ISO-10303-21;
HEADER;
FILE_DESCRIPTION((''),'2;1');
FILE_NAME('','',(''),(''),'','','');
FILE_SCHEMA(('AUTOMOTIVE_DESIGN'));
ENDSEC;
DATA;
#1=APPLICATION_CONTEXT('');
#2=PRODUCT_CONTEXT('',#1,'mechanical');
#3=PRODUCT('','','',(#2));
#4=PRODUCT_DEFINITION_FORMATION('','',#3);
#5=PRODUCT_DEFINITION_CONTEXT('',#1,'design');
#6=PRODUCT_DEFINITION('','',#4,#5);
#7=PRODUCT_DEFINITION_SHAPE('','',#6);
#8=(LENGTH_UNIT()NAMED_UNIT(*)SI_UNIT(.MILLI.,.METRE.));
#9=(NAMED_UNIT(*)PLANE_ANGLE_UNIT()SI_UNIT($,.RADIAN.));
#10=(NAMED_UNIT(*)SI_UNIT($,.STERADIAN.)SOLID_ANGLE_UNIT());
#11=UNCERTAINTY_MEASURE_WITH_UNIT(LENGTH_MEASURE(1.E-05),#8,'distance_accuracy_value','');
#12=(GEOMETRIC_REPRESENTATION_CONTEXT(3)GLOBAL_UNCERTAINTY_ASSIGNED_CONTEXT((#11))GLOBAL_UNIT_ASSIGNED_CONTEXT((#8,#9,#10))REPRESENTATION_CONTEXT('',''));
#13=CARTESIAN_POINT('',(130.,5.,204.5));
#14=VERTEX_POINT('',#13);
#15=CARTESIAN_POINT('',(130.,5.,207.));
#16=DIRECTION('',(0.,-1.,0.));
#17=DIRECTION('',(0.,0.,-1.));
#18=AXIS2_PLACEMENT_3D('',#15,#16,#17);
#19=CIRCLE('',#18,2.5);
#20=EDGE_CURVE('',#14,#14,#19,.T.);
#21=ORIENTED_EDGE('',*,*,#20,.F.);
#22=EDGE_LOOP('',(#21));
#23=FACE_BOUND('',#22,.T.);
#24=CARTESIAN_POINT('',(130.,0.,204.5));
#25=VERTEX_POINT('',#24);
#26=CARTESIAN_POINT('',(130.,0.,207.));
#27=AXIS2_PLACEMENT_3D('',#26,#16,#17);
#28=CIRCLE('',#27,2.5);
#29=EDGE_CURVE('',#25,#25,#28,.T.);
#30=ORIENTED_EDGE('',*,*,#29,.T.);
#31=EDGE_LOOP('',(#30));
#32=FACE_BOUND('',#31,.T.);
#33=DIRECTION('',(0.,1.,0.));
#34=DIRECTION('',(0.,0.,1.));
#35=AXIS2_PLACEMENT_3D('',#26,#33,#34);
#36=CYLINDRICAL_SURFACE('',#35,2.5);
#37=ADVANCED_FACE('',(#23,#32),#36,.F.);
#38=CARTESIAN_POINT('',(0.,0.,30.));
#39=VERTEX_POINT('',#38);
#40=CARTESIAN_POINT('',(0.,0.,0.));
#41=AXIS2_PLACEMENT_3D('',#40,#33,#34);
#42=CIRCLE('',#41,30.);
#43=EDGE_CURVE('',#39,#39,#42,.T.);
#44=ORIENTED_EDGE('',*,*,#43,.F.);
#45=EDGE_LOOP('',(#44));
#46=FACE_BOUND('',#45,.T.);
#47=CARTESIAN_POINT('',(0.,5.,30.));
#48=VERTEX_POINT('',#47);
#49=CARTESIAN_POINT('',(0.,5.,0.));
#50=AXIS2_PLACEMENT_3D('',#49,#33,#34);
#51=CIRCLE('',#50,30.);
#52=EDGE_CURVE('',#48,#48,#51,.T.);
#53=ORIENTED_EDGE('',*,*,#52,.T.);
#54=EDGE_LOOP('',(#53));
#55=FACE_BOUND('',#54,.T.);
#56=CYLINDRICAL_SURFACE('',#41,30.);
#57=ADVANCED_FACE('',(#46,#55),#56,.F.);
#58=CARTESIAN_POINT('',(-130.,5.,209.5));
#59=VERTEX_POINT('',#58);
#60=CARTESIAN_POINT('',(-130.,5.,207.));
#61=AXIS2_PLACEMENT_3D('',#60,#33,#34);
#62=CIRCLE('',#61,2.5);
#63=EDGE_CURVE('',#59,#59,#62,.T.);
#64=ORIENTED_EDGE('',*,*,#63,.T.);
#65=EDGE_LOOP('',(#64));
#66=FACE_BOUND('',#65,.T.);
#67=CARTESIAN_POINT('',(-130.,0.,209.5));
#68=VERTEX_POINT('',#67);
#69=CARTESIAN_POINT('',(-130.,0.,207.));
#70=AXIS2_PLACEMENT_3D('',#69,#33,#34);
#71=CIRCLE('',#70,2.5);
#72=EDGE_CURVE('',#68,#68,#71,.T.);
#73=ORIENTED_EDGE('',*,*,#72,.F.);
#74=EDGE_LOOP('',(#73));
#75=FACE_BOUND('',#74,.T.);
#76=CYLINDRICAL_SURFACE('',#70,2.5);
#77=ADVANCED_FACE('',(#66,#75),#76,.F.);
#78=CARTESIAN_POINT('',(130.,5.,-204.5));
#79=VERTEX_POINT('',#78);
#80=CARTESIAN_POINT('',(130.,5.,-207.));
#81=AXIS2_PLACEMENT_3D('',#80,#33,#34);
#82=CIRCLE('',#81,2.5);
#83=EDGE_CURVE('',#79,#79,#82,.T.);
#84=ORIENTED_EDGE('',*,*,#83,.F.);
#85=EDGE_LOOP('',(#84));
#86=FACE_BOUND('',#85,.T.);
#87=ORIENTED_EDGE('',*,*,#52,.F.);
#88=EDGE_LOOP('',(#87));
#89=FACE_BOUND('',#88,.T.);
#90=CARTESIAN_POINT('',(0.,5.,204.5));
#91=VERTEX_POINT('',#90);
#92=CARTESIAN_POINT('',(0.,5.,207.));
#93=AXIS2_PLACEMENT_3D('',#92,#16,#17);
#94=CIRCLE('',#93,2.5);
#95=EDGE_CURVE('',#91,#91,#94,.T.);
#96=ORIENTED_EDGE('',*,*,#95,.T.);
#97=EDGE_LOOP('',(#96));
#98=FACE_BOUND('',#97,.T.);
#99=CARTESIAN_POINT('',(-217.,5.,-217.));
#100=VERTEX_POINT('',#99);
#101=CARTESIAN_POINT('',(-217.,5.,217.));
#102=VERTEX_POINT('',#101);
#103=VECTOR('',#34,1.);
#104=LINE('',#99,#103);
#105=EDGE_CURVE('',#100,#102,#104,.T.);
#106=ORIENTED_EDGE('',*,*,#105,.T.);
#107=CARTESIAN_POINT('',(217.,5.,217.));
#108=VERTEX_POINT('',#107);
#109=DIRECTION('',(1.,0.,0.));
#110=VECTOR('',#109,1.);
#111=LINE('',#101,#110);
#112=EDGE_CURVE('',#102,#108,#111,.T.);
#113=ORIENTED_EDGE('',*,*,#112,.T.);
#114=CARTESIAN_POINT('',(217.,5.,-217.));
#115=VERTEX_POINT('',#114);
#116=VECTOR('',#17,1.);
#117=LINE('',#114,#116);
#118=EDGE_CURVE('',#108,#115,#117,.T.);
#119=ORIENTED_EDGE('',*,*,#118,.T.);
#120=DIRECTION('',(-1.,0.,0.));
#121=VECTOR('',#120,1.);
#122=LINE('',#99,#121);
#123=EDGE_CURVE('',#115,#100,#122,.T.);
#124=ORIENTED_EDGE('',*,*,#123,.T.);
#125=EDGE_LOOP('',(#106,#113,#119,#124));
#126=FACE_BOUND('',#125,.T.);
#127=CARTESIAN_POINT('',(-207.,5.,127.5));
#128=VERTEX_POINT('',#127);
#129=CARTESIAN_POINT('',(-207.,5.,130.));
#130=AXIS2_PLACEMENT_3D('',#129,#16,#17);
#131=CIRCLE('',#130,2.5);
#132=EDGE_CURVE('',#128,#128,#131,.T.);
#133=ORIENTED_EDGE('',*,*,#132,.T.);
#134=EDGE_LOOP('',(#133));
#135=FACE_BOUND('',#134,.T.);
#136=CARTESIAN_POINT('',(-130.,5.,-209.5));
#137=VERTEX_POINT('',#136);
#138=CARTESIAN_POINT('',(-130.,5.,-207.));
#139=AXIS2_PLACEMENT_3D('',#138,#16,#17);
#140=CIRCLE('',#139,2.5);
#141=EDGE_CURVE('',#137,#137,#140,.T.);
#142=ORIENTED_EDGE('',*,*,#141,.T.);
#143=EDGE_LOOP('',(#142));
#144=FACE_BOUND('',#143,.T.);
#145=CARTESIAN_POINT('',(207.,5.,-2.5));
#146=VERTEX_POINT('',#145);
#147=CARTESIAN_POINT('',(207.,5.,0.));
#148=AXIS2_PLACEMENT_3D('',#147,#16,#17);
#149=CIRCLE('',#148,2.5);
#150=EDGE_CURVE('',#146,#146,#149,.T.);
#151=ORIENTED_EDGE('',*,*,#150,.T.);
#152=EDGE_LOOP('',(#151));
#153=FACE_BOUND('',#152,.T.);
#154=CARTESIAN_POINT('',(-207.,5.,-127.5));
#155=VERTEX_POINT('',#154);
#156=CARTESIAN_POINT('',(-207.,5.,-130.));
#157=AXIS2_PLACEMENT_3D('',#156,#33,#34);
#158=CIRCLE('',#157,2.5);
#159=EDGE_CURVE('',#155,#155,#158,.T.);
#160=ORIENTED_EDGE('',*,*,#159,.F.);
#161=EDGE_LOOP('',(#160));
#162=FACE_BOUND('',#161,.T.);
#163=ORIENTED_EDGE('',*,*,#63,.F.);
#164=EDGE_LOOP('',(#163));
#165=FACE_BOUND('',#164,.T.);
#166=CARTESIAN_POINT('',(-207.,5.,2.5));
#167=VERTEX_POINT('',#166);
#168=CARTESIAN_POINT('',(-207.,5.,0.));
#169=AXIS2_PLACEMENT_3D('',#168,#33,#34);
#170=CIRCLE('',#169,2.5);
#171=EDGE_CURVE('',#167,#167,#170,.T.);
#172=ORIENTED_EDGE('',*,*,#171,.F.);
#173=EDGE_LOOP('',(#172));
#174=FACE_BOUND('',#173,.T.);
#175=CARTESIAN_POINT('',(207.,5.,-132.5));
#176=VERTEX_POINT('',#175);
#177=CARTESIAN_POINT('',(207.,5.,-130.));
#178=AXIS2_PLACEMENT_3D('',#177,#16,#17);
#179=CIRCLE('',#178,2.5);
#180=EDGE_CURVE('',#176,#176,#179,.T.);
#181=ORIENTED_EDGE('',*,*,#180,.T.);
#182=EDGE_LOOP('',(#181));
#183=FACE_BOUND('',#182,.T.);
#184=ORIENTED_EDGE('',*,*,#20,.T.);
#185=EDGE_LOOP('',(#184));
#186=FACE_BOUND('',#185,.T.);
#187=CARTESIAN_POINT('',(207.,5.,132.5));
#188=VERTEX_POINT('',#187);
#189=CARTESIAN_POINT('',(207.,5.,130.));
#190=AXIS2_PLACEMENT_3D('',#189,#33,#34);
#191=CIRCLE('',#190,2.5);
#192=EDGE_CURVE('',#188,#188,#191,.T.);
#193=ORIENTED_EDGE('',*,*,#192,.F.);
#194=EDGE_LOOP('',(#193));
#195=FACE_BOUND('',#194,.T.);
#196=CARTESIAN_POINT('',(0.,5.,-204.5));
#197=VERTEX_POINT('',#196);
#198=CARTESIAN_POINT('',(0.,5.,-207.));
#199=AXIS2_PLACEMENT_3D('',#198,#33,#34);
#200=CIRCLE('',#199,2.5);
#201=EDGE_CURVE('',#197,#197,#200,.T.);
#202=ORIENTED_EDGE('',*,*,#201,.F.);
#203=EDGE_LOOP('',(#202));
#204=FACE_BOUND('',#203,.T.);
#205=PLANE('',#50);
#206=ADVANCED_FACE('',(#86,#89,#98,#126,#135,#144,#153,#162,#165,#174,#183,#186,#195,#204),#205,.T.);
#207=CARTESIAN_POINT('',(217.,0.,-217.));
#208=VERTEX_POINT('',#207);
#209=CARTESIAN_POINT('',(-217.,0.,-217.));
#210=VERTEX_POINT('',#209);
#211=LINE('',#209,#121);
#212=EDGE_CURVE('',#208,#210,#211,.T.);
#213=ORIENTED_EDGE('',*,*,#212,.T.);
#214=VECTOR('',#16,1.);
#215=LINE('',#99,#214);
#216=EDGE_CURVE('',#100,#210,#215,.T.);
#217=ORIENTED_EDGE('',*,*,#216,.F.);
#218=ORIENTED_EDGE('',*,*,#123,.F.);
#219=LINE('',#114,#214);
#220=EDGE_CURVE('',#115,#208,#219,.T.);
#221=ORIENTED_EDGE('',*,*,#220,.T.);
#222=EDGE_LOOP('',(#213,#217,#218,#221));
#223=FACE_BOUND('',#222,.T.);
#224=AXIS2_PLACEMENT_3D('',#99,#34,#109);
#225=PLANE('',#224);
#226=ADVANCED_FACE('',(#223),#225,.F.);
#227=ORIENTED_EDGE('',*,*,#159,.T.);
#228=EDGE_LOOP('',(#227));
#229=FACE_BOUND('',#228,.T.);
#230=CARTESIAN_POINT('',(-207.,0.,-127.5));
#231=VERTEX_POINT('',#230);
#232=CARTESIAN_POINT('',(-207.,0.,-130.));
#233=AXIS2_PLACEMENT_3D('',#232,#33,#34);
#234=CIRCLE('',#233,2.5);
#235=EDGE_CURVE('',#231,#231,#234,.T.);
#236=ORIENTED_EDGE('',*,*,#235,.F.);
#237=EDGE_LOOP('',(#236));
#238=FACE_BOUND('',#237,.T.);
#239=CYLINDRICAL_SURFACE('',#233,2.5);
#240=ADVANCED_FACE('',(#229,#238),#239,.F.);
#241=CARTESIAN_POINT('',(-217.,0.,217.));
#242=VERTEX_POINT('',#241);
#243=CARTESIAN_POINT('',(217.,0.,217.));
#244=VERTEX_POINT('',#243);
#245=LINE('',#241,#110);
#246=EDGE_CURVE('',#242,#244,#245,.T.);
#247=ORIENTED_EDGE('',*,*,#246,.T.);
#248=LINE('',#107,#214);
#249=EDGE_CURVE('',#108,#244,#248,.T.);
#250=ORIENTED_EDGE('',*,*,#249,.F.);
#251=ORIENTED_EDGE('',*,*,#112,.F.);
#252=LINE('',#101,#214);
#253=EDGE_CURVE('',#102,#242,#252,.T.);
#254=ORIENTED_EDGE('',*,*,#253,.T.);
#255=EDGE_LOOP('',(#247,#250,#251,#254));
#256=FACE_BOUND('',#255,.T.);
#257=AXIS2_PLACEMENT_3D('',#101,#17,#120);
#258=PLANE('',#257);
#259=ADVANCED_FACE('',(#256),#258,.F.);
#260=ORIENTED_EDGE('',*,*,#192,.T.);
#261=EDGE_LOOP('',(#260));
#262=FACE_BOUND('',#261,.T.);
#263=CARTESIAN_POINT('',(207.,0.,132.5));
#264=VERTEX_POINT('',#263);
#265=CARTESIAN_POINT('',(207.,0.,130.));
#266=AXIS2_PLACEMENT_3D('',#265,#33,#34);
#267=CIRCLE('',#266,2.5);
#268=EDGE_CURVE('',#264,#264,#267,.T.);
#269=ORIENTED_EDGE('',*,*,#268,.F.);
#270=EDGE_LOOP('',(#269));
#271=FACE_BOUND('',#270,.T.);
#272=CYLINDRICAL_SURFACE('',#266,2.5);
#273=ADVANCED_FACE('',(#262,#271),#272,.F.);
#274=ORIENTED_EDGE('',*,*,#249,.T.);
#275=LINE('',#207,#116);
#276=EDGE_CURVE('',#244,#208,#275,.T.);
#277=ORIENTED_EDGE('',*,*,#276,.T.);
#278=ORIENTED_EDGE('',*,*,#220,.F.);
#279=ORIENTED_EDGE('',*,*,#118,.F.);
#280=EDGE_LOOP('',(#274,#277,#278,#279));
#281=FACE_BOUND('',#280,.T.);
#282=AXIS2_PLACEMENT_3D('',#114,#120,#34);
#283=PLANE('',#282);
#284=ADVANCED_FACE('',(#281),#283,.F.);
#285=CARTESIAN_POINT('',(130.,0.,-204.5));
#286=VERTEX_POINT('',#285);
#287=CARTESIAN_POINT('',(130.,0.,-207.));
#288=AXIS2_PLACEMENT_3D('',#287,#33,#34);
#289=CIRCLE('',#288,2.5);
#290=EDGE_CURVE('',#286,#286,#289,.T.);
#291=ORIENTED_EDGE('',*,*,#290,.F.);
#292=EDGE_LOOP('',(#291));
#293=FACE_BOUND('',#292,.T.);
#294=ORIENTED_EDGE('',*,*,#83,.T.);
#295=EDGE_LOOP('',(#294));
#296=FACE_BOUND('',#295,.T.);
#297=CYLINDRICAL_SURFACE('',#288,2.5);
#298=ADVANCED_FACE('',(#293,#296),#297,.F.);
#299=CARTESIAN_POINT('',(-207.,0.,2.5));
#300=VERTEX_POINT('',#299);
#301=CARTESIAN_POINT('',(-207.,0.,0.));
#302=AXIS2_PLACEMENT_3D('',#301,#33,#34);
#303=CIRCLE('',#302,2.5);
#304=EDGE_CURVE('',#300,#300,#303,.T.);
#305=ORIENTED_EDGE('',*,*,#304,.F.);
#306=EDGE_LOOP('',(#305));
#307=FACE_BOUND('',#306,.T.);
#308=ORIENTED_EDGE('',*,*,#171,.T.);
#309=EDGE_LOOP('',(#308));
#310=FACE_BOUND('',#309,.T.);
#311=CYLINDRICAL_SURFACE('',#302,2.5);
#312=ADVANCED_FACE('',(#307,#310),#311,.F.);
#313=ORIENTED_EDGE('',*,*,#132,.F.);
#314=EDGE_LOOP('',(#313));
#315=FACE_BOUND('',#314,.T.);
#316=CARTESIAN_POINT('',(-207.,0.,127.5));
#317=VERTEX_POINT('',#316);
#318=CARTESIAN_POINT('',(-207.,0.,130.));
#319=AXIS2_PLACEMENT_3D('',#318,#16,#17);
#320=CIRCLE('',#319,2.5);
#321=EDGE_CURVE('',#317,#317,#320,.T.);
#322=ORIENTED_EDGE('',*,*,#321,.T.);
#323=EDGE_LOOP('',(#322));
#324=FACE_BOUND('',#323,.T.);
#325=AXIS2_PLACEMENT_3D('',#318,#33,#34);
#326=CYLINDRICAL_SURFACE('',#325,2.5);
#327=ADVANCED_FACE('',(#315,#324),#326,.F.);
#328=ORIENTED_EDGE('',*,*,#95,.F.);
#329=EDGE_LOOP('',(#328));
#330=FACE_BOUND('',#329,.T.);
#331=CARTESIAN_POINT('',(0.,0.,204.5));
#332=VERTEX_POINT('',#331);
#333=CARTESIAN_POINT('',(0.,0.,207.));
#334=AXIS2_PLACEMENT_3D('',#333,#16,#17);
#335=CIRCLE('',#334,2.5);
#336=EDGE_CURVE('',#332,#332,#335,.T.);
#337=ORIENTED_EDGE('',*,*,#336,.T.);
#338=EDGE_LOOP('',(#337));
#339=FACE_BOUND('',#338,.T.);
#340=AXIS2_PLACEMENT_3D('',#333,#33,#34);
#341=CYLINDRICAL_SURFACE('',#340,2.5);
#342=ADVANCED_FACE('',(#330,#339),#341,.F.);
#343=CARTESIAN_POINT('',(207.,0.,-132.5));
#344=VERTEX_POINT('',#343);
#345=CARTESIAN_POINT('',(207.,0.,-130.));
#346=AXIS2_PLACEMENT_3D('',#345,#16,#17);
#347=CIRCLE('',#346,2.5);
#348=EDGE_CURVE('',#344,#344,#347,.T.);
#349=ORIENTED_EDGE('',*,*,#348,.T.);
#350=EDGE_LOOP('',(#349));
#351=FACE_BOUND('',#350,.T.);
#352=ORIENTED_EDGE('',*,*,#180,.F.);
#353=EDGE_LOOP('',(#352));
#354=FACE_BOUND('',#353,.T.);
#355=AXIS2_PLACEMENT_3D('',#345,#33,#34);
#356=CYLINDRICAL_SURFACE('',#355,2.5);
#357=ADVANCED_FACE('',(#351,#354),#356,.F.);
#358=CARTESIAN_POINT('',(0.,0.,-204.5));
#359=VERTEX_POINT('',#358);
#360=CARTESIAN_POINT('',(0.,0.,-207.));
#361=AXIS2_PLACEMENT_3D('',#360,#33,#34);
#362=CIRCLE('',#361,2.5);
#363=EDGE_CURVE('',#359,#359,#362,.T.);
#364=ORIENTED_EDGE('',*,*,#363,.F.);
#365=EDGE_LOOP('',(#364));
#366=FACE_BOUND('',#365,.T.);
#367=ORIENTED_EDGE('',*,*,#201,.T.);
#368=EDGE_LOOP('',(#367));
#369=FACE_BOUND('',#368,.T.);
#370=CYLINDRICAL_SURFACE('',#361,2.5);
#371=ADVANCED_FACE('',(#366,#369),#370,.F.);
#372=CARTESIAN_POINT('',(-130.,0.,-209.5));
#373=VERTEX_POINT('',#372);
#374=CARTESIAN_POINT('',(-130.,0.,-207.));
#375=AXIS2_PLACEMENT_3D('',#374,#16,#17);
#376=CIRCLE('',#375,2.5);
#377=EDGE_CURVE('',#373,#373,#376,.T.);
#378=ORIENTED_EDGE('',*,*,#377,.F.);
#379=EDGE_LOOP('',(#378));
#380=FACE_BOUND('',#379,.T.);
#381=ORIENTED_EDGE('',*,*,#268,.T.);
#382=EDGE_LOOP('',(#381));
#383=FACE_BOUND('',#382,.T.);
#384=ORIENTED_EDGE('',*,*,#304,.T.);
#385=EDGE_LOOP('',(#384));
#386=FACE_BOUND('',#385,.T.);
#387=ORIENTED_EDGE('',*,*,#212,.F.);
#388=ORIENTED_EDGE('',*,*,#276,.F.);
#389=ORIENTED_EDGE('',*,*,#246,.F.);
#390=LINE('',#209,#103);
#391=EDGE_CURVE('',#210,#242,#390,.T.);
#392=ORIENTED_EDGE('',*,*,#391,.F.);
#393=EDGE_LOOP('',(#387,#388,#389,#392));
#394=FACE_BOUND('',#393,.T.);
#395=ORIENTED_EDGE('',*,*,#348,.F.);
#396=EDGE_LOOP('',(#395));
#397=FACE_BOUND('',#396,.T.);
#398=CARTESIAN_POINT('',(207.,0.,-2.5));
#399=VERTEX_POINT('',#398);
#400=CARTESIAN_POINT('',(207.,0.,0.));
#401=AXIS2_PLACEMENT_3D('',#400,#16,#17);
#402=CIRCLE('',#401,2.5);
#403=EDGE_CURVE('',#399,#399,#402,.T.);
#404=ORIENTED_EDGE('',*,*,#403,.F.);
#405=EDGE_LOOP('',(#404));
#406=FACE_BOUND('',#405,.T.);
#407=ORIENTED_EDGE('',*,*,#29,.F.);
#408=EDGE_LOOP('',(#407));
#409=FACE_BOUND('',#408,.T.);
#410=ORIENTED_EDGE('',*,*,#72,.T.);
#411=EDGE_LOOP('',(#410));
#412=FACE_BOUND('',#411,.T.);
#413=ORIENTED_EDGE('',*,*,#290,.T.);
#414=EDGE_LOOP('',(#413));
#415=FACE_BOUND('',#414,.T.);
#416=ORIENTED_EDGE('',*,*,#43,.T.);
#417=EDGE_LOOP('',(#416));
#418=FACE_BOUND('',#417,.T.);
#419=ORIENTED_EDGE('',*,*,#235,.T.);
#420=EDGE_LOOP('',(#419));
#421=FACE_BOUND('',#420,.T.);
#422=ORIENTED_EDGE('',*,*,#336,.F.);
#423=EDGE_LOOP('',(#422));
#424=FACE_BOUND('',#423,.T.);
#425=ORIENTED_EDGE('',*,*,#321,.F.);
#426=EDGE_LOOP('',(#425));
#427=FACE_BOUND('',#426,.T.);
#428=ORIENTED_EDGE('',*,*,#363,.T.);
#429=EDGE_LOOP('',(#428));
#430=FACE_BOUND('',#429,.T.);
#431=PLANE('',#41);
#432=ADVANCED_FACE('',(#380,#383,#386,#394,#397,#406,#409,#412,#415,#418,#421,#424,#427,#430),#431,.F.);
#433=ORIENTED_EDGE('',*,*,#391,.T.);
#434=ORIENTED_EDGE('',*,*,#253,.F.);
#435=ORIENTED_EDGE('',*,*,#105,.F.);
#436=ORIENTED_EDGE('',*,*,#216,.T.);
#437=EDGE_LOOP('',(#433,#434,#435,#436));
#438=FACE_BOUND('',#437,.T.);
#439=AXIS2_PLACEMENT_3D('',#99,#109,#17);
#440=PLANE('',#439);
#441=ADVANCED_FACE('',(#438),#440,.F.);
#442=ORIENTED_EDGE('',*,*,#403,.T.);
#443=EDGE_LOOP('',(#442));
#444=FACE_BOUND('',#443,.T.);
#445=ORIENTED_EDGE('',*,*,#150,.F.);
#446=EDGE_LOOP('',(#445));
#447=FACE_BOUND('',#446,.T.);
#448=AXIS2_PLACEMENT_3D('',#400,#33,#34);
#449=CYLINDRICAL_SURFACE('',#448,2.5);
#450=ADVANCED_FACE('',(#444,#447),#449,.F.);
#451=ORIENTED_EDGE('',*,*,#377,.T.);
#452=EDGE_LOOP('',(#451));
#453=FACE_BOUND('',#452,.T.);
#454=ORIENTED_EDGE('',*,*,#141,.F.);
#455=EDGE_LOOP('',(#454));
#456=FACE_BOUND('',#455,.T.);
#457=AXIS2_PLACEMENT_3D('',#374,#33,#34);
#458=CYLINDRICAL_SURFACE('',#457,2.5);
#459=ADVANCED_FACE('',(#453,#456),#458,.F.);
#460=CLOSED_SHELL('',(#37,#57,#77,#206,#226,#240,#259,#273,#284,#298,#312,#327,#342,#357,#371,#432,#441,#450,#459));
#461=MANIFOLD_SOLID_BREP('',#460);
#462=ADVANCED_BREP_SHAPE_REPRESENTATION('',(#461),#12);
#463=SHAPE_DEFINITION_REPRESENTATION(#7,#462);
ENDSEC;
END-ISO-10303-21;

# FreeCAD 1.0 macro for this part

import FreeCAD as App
import Part
import Sketcher
Q = App.Units.Quantity


def add_polygon(sketch, points):
    """Adds a closed chain of lines whose ends are joined by coincident constraints."""
    first, n = sketch.GeometryCount, len(points)
    for a, b in zip(points, points[1:] + points[:1]):
        sketch.addGeometry(Part.LineSegment(App.Vector(*a, 0), App.Vector(*b, 0)), False)
    for i in range(n):
        sketch.addConstraint(Sketcher.Constraint("Coincident", first + i, 2, first + (i + 1) % n, 1))

doc = App.newDocument("Part")
params = doc.addObject("Spreadsheet::Sheet", "Params")
for row, (alias, value) in enumerate([
    ("sketch1_width", "434 mm"),
    ("pad1_length", "5 mm"),
    ("sketch2_diameter", "5 mm"),
    ("pocket1_length", "5 mm"),
    ("sketch3_diameter", "60 mm"),
    ("pocket2_length", "5 mm"),
], start=1):
    params.set(f"A{row}", alias)
    params.set(f"B{row}", "=" + value)
    params.setAlias(f"B{row}", alias)

body = doc.addObject("PartDesign::Body", "Body")

# Sketch on XZ plane
sketch1 = body.newObject("Sketcher::SketchObject", "Sketch")
sketch1.AttachmentSupport = (doc.getObject("XZ_Plane"), [""])
sketch1.MapMode = "FlatFace"
add_polygon(sketch1, [(-217, -217), (-217, 217), (217, 217), (217, -217)])  # lines 0-3
sketch1.addConstraint([
    Sketcher.Constraint("Vertical", 0),
    Sketcher.Constraint("Horizontal", 1),
    Sketcher.Constraint("Vertical", 2),
    Sketcher.Constraint("Horizontal", 3),
    Sketcher.Constraint("Symmetric", 0, 2, 2, 2, -1, 1),
    Sketcher.Constraint("Equal", 3, 0),
    Sketcher.Constraint("DistanceX", 1, 1, 1, 2, Q("434 mm")),
])
sketch1.setExpression("Constraints[10]", "Params.sketch1_width")
pad1 = body.newObject("PartDesign::Pad", "Pad")
pad1.Profile = sketch1
pad1.setExpression("Length", "Params.pad1_length")
pad1.Reversed = True

# Sketch on XZ plane
sketch2 = body.newObject("Sketcher::SketchObject", "Sketch001")
sketch2.AttachmentSupport = (doc.getObject("XZ_Plane"), [""])
sketch2.MapMode = "FlatFace"
sketch2.AttachmentOffset = App.Placement(App.Vector(0, 0, -5), App.Rotation())
sketch2.addGeometry([
    Part.Circle(App.Vector(-207, -130, 0), App.Vector(0, 0, 1), 2.5),  # 0
    Part.Circle(App.Vector(-207, 0, 0), App.Vector(0, 0, 1), 2.5),  # 1
    Part.Circle(App.Vector(-207, 130, 0), App.Vector(0, 0, 1), 2.5),  # 2
    Part.Circle(App.Vector(207, 130, 0), App.Vector(0, 0, 1), 2.5),  # 3
    Part.Circle(App.Vector(207, 0, 0), App.Vector(0, 0, 1), 2.5),  # 4
    Part.Circle(App.Vector(207, -130, 0), App.Vector(0, 0, 1), 2.5),  # 5
    Part.Circle(App.Vector(130, -207, 0), App.Vector(0, 0, 1), 2.5),  # 6
    Part.Circle(App.Vector(0, -207, 0), App.Vector(0, 0, 1), 2.5),  # 7
    Part.Circle(App.Vector(-130, -207, 0), App.Vector(0, 0, 1), 2.5),  # 8
    Part.Circle(App.Vector(-130, 207, 0), App.Vector(0, 0, 1), 2.5),  # 9
    Part.Circle(App.Vector(0, 207, 0), App.Vector(0, 0, 1), 2.5),  # 10
    Part.Circle(App.Vector(130, 207, 0), App.Vector(0, 0, 1), 2.5),  # 11
], False)
sketch2.addConstraint([
    Sketcher.Constraint("Equal", 0, 1),
    Sketcher.Constraint("Equal", 1, 2),
    Sketcher.Constraint("Equal", 2, 3),
    Sketcher.Constraint("Equal", 3, 4),
    Sketcher.Constraint("Equal", 4, 5),
    Sketcher.Constraint("Equal", 5, 6),
    Sketcher.Constraint("Equal", 6, 7),
    Sketcher.Constraint("Equal", 7, 8),
    Sketcher.Constraint("Equal", 8, 9),
    Sketcher.Constraint("Equal", 9, 10),
    Sketcher.Constraint("Equal", 10, 11),
    Sketcher.Constraint("Symmetric", 0, 3, 3, 3, -1, 1),
    Sketcher.Constraint("Symmetric", 1, 3, 4, 3, -1, 1),
    Sketcher.Constraint("Symmetric", 2, 3, 5, 3, -1, 1),
    Sketcher.Constraint("Symmetric", 6, 3, 9, 3, -1, 1),
    Sketcher.Constraint("Symmetric", 7, 3, 10, 3, -1, 1),
    Sketcher.Constraint("Symmetric", 8, 3, 11, 3, -1, 1),
    Sketcher.Constraint("Symmetric", 2, 3, 3, 3, -2),
    Sketcher.Constraint("Symmetric", 6, 3, 8, 3, -2),
    Sketcher.Constraint("PointOnObject", 1, 3, -1),
    Sketcher.Constraint("PointOnObject", 7, 3, -2),
    Sketcher.Constraint("Horizontal", 6, 3, 7, 3),
    Sketcher.Constraint("Vertical", 0, 3, 1, 3),
    Sketcher.Constraint("Diameter", 0, Q("5 mm")),
    Sketcher.Constraint("DistanceX", 0, 3, -1, 1, Q("207 mm")),
    Sketcher.Constraint("DistanceY", 0, 3, -1, 1, Q("130 mm")),
    Sketcher.Constraint("DistanceX", -1, 1, 6, 3, Q("130 mm")),
    Sketcher.Constraint("DistanceY", 6, 3, -1, 1, Q("207 mm")),
])
sketch2.setExpression("Constraints[23]", "Params.sketch2_diameter")
pocket1 = body.newObject("PartDesign::Pocket", "Pocket")
pocket1.Profile = sketch2
pocket1.setExpression("Length", "Params.pocket1_length")
pocket1.Reversed = True

# Sketch on XZ plane
sketch3 = body.newObject("Sketcher::SketchObject", "Sketch002")
sketch3.AttachmentSupport = (doc.getObject("XZ_Plane"), [""])
sketch3.MapMode = "FlatFace"
sketch3.AttachmentOffset = App.Placement(App.Vector(0, 0, -5), App.Rotation())
sketch3.addGeometry(Part.Circle(App.Vector(0, 0, 0), App.Vector(0, 0, 1), 30), False)
sketch3.addConstraint([
    Sketcher.Constraint("Coincident", 0, 3, -1, 1),
    Sketcher.Constraint("Diameter", 0, Q("60 mm")),
])
sketch3.setExpression("Constraints[1]", "Params.sketch3_diameter")
pocket2 = body.newObject("PartDesign::Pocket", "Pocket001")
pocket2.Profile = sketch3
pocket2.setExpression("Length", "Params.pocket2_length")
pocket2.Reversed = True

doc.recompute()
